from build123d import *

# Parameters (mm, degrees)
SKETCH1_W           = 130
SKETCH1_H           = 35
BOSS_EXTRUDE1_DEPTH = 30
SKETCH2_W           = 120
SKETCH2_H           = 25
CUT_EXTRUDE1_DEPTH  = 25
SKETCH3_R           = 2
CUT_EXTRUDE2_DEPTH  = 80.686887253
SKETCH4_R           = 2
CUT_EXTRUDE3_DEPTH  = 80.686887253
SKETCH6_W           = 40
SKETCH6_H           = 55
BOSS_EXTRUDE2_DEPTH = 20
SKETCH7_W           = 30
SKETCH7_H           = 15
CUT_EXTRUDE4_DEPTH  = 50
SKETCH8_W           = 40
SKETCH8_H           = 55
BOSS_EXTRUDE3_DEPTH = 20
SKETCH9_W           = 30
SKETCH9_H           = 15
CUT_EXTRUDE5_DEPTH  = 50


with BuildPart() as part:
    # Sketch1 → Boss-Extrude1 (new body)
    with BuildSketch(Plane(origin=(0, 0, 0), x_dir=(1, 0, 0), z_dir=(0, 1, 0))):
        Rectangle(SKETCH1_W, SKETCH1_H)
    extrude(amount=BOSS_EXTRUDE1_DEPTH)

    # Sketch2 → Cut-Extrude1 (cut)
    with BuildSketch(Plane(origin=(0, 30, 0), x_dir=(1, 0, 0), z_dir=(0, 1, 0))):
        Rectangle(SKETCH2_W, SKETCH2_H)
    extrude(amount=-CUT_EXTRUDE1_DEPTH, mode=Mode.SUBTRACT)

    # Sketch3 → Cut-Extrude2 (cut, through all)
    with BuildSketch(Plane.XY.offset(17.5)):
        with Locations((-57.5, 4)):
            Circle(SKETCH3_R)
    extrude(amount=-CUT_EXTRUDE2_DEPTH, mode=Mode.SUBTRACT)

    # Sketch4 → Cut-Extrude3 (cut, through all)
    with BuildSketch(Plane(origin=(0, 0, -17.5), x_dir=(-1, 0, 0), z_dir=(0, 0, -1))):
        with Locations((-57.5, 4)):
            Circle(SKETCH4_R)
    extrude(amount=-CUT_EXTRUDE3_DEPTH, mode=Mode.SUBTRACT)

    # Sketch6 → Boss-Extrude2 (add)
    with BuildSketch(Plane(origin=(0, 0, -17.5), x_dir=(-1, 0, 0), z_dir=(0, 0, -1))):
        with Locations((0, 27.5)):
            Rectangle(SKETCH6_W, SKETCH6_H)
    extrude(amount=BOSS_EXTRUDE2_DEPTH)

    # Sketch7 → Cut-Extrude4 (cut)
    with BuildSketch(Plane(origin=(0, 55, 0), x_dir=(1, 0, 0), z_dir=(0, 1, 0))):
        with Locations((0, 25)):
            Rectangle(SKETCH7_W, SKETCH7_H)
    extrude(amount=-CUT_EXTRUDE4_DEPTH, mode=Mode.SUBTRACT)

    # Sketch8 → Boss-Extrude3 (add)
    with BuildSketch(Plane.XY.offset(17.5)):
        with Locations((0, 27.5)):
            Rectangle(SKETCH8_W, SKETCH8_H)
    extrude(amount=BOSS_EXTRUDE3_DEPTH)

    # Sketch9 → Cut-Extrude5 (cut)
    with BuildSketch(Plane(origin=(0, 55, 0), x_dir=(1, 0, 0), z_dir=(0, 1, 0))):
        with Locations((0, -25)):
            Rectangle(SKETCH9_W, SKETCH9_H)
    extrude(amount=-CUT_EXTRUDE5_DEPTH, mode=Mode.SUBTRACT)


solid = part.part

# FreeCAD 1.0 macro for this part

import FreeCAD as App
import Part
import Sketcher
from FreeCAD import Vector


def add_polygon(sketch, points):
    """Adds a closed chain of lines whose ends are joined by coincident constraints."""
    first, n = sketch.GeometryCount, len(points)
    for a, b in zip(points, points[1:] + points[:1]):
        sketch.addGeometry(Part.LineSegment(App.Vector(*a, 0), App.Vector(*b, 0)), False)
    for i in range(n):
        sketch.addConstraint(Sketcher.Constraint("Coincident", first + i, 2, first + (i + 1) % n, 1))

doc = App.newDocument("Part")
params = doc.addObject("Spreadsheet::Sheet", "Params")
for row, (alias, value) in enumerate([
    ("sketch1_width", "130 mm"),
    ("sketch1_height", "35 mm"),
    ("pad1_length", "30 mm"),
    ("sketch2_width", "120 mm"),
    ("sketch2_height", "25 mm"),
    ("pocket1_length", "25 mm"),
    ("sketch3_diameter", "4 mm"),
    ("sketch4_diameter", "4 mm"),
    ("sketch5_width", "40 mm"),
    ("sketch5_height", "55 mm"),
    ("pad2_length", "20 mm"),
    ("sketch6_width", "30 mm"),
    ("sketch6_height", "15 mm"),
    ("pocket4_length", "50 mm"),
    ("sketch7_width", "40 mm"),
    ("sketch7_height", "55 mm"),
    ("pad3_length", "20 mm"),
    ("sketch8_width", "30 mm"),
    ("sketch8_height", "15 mm"),
    ("pocket5_length", "50 mm"),
], start=1):
    params.set(f"A{row}", alias)
    params.set(f"B{row}", "=" + value)
    params.setAlias(f"B{row}", alias)

body = doc.addObject("PartDesign::Body", "Body")

sketch1 = body.newObject("Sketcher::SketchObject", "Sketch")
sketch1.AttachmentSupport = (doc.getObject("XZ_Plane"), [""])
sketch1.MapMode = "FlatFace"
add_polygon(sketch1, [(-65, -17.5), (-65, 17.5), (65, 17.5), (65, -17.5)])
sketch1.addConstraint([
    Sketcher.Constraint("Vertical", 0),
    Sketcher.Constraint("Horizontal", 1),
    Sketcher.Constraint("Vertical", 2),
    Sketcher.Constraint("Horizontal", 3),
    Sketcher.Constraint("Symmetric", 0, 2, 2, 2, -1, 1),
    Sketcher.Constraint("DistanceX", 1, 1, 1, 2, 130.0),
    Sketcher.Constraint("DistanceY", 0, 1, 0, 2, 35.0),
])
sketch1.setExpression("Constraints[9]", "Params.sketch1_width")
sketch1.setExpression("Constraints[10]", "Params.sketch1_height")
pad1 = body.newObject("PartDesign::Pad", "Pad")
pad1.Profile = sketch1
pad1.setExpression("Length", "Params.pad1_length")
pad1.Reversed = True

sketch2 = body.newObject("Sketcher::SketchObject", "Sketch001")
sketch2.AttachmentSupport = (doc.getObject("XZ_Plane"), [""])
sketch2.MapMode = "FlatFace"
sketch2.AttachmentOffset = App.Placement(Vector(0, 0, -30), App.Rotation())
add_polygon(sketch2, [(-60, -12.5), (-60, 12.5), (60, 12.5), (60, -12.5)])
sketch2.addConstraint([
    Sketcher.Constraint("Vertical", 0),
    Sketcher.Constraint("Horizontal", 1),
    Sketcher.Constraint("Vertical", 2),
    Sketcher.Constraint("Horizontal", 3),
    Sketcher.Constraint("Symmetric", 0, 2, 2, 2, -1, 1),
    Sketcher.Constraint("DistanceX", 1, 1, 1, 2, 120.0),
    Sketcher.Constraint("DistanceY", 0, 1, 0, 2, 25.0),
])
sketch2.setExpression("Constraints[9]", "Params.sketch2_width")
sketch2.setExpression("Constraints[10]", "Params.sketch2_height")
pocket1 = body.newObject("PartDesign::Pocket", "Pocket")
pocket1.Profile = sketch2
pocket1.setExpression("Length", "Params.pocket1_length")
pocket1.Reversed = True

sketch3 = body.newObject("Sketcher::SketchObject", "Sketch002")
sketch3.AttachmentSupport = (doc.getObject("XY_Plane"), [""])
sketch3.MapMode = "FlatFace"
sketch3.AttachmentOffset = App.Placement(Vector(0, 0, 17.5), App.Rotation())
sketch3.addGeometry(Part.Circle(Vector(-57.5, 4, 0), Vector(0, 0, 1), 2), False)
sketch3.addConstraint([
    Sketcher.Constraint("Diameter", 0, 4.0),
    Sketcher.Constraint("DistanceY", -1, 1, 0, 3, 4.0),
    Sketcher.Constraint("DistanceX", 0, 3, -1, 1, 57.5),
])
sketch3.setExpression("Constraints[0]", "Params.sketch3_diameter")
pocket2 = body.newObject("PartDesign::Pocket", "Pocket001")
pocket2.Profile = sketch3
pocket2.Type = "ThroughAll"

sketch4 = body.newObject("Sketcher::SketchObject", "Sketch003")
sketch4.AttachmentSupport = (doc.getObject("XY_Plane"), [""])
sketch4.MapMode = "FlatFace"
sketch4.AttachmentOffset = App.Placement(Vector(0, 0, -17.5), App.Rotation())
sketch4.addGeometry(Part.Circle(Vector(57.5, 4, 0), Vector(0, 0, 1), 2), False)
sketch4.addConstraint([
    Sketcher.Constraint("Diameter", 0, 4.0),
    Sketcher.Constraint("DistanceY", -1, 1, 0, 3, 4.0),
    Sketcher.Constraint("DistanceX", -1, 1, 0, 3, 57.5),
])
sketch4.setExpression("Constraints[0]", "Params.sketch4_diameter")
pocket3 = body.newObject("PartDesign::Pocket", "Pocket002")
pocket3.Profile = sketch4
pocket3.Type = "ThroughAll"
pocket3.Reversed = True

sketch5 = body.newObject("Sketcher::SketchObject", "Sketch004")
sketch5.AttachmentSupport = (doc.getObject("XY_Plane"), [""])
sketch5.MapMode = "FlatFace"
sketch5.AttachmentOffset = App.Placement(Vector(0, 0, -17.5), App.Rotation())
add_polygon(sketch5, [(20, 55), (20, 0), (-20, 0), (-20, 55)])
sketch5.addConstraint([
    Sketcher.Constraint("Vertical", 0),
    Sketcher.Constraint("Horizontal", 1),
    Sketcher.Constraint("Vertical", 2),
    Sketcher.Constraint("Horizontal", 3),
    Sketcher.Constraint("Symmetric", 0, 2, 1, 2, -1, 1),
    Sketcher.Constraint("DistanceX", 1, 2, 1, 1, 40.0),
    Sketcher.Constraint("DistanceY", 0, 2, 0, 1, 55.0),
])
sketch5.setExpression("Constraints[9]", "Params.sketch5_width")
sketch5.setExpression("Constraints[10]", "Params.sketch5_height")
pad2 = body.newObject("PartDesign::Pad", "Pad001")
pad2.Profile = sketch5
pad2.setExpression("Length", "Params.pad2_length")
pad2.Reversed = True

sketch6 = body.newObject("Sketcher::SketchObject", "Sketch005")
sketch6.AttachmentSupport = (doc.getObject("XZ_Plane"), [""])
sketch6.MapMode = "FlatFace"
sketch6.AttachmentOffset = App.Placement(Vector(0, 0, -55), App.Rotation())
add_polygon(sketch6, [(-15, -32.5), (-15, -17.5), (15, -17.5), (15, -32.5)])
sketch6.addConstraint([
    Sketcher.Constraint("Vertical", 0),
    Sketcher.Constraint("Horizontal", 1),
    Sketcher.Constraint("Vertical", 2),
    Sketcher.Constraint("Horizontal", 3),
    Sketcher.Constraint("DistanceX", 1, 1, 1, 2, 30.0),
    Sketcher.Constraint("DistanceY", 0, 1, 0, 2, 15.0),
    Sketcher.Constraint("DistanceX", 0, 2, -1, 1, 15.0),
    Sketcher.Constraint("DistanceY", 0, 2, -1, 1, 17.5),
])
sketch6.setExpression("Constraints[8]", "Params.sketch6_width")
sketch6.setExpression("Constraints[9]", "Params.sketch6_height")
pocket4 = body.newObject("PartDesign::Pocket", "Pocket003")
pocket4.Profile = sketch6
pocket4.setExpression("Length", "Params.pocket4_length")
pocket4.Reversed = True

sketch7 = body.newObject("Sketcher::SketchObject", "Sketch006")
sketch7.AttachmentSupport = (doc.getObject("XY_Plane"), [""])
sketch7.MapMode = "FlatFace"
sketch7.AttachmentOffset = App.Placement(Vector(0, 0, 17.5), App.Rotation())
add_polygon(sketch7, [(-20, 55), (-20, 0), (20, 0), (20, 55)])
sketch7.addConstraint([
    Sketcher.Constraint("Vertical", 0),
    Sketcher.Constraint("Horizontal", 1),
    Sketcher.Constraint("Vertical", 2),
    Sketcher.Constraint("Horizontal", 3),
    Sketcher.Constraint("Symmetric", 0, 2, 1, 2, -1, 1),
    Sketcher.Constraint("DistanceX", 1, 1, 1, 2, 40.0),
    Sketcher.Constraint("DistanceY", 0, 2, 0, 1, 55.0),
])
sketch7.setExpression("Constraints[9]", "Params.sketch7_width")
sketch7.setExpression("Constraints[10]", "Params.sketch7_height")
pad3 = body.newObject("PartDesign::Pad", "Pad002")
pad3.Profile = sketch7
pad3.setExpression("Length", "Params.pad3_length")

sketch8 = body.newObject("Sketcher::SketchObject", "Sketch007")
sketch8.AttachmentSupport = (doc.getObject("XZ_Plane"), [""])
sketch8.MapMode = "FlatFace"
sketch8.AttachmentOffset = App.Placement(Vector(0, 0, -55), App.Rotation())
add_polygon(sketch8, [(-15, 17.5), (-15, 32.5), (15, 32.5), (15, 17.5)])
sketch8.addConstraint([
    Sketcher.Constraint("Vertical", 0),
    Sketcher.Constraint("Horizontal", 1),
    Sketcher.Constraint("Vertical", 2),
    Sketcher.Constraint("Horizontal", 3),
    Sketcher.Constraint("DistanceX", 1, 1, 1, 2, 30.0),
    Sketcher.Constraint("DistanceY", 0, 1, 0, 2, 15.0),
    Sketcher.Constraint("DistanceX", 0, 2, -1, 1, 15.0),
    Sketcher.Constraint("DistanceY", -1, 1, 0, 2, 32.5),
])
sketch8.setExpression("Constraints[8]", "Params.sketch8_width")
sketch8.setExpression("Constraints[9]", "Params.sketch8_height")
pocket5 = body.newObject("PartDesign::Pocket", "Pocket004")
pocket5.Profile = sketch8
pocket5.setExpression("Length", "Params.pocket5_length")
pocket5.Reversed = True

doc.recompute()
